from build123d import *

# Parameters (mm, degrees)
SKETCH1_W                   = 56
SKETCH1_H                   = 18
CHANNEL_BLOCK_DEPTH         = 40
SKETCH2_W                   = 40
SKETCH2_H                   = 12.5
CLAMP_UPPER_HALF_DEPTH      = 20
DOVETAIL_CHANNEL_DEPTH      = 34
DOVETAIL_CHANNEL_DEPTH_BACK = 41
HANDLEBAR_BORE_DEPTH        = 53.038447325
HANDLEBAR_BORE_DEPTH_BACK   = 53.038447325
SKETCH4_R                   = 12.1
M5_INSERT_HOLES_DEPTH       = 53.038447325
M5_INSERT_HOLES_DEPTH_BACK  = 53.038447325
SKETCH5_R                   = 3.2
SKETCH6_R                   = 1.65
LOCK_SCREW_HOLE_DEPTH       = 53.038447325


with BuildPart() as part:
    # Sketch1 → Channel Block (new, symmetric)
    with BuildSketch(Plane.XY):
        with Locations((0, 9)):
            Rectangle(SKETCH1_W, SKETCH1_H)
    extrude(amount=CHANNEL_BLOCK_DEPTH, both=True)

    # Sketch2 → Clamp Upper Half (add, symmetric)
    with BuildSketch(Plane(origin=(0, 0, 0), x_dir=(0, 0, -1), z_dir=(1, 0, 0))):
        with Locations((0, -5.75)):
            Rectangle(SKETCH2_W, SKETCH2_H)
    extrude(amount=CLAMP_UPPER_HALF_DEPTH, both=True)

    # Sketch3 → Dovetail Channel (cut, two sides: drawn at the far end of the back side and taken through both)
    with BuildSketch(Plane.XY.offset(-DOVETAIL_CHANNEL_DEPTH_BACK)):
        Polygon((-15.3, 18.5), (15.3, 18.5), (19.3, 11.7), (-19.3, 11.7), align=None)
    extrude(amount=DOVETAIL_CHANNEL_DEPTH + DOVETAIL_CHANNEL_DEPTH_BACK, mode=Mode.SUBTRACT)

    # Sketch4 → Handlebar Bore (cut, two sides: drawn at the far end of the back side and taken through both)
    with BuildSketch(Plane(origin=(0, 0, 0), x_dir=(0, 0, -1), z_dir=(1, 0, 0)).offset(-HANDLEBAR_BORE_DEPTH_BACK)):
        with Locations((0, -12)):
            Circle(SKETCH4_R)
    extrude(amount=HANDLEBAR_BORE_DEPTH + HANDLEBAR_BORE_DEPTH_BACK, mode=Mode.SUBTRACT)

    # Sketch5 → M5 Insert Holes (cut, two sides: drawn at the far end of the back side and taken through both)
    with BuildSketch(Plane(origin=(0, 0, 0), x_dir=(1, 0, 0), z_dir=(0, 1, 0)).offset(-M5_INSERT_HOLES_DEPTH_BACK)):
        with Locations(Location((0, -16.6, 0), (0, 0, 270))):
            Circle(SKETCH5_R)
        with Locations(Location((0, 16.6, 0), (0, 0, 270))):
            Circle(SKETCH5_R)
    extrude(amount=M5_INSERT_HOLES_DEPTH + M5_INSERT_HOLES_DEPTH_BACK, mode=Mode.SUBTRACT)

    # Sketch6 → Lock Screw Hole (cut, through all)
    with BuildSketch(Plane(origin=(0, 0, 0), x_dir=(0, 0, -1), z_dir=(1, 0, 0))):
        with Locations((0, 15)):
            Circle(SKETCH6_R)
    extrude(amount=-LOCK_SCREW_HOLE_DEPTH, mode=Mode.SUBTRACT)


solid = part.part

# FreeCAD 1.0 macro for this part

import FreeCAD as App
import Part
import Sketcher

V = App.Vector
Q = App.Units.Quantity

doc = App.newDocument("Part")
body = doc.addObject("PartDesign::Body", "Body")

sketch1 = body.newObject("Sketcher::SketchObject", "Sketch")
sketch1.AttachmentSupport = (doc.getObject("XY_Plane"), [""])
sketch1.MapMode = "FlatFace"
sketch1.addGeometry([
    Part.LineSegment(V(-28, 18, 0), V(-28, 0, 0)),
    Part.LineSegment(V(-28, 0, 0), V(28, 0, 0)),
    Part.LineSegment(V(28, 0, 0), V(28, 18, 0)),
    Part.LineSegment(V(28, 18, 0), V(-28, 18, 0)),
], False)
sketch1.addConstraint([
    Sketcher.Constraint("Coincident", 0, 2, 1, 1),
    Sketcher.Constraint("Coincident", 1, 2, 2, 1),
    Sketcher.Constraint("Coincident", 2, 2, 3, 1),
    Sketcher.Constraint("Coincident", 3, 2, 0, 1),
    Sketcher.Constraint("Vertical", 0),
    Sketcher.Constraint("Horizontal", 1),
    Sketcher.Constraint("Vertical", 2),
    Sketcher.Constraint("Horizontal", 3),
    Sketcher.Constraint("Symmetric", 0, 2, 1, 2, -1, 1),
    Sketcher.Constraint("DistanceX", 1, 1, 1, 2, Q("56 mm")),
    Sketcher.Constraint("DistanceY", 0, 2, 0, 1, Q("18 mm")),
])
pad1 = body.newObject("PartDesign::Pad", "Pad")
pad1.Profile = sketch1
pad1.Length = 80
pad1.Midplane = True

sketch2 = body.newObject("Sketcher::SketchObject", "Sketch001")
sketch2.AttachmentSupport = (doc.getObject("YZ_Plane"), [""])
sketch2.MapMode = "FlatFace"
sketch2.addGeometry([
    Part.LineSegment(V(0.5, 20, 0), V(-12, 20, 0)),
    Part.LineSegment(V(-12, 20, 0), V(-12, -20, 0)),
    Part.LineSegment(V(-12, -20, 0), V(0.5, -20, 0)),
    Part.LineSegment(V(0.5, -20, 0), V(0.5, 20, 0)),
], False)
sketch2.addConstraint([
    Sketcher.Constraint("Coincident", 0, 2, 1, 1),
    Sketcher.Constraint("Coincident", 1, 2, 2, 1),
    Sketcher.Constraint("Coincident", 2, 2, 3, 1),
    Sketcher.Constraint("Coincident", 3, 2, 0, 1),
    Sketcher.Constraint("Horizontal", 0),
    Sketcher.Constraint("Vertical", 1),
    Sketcher.Constraint("Horizontal", 2),
    Sketcher.Constraint("Vertical", 3),
    Sketcher.Constraint("DistanceY", 1, 2, 1, 1, Q("40 mm")),
    Sketcher.Constraint("DistanceX", 0, 2, 0, 1, Q("12.5 mm")),
    Sketcher.Constraint("DistanceX", 0, 2, -1, 1, Q("12 mm")),
    Sketcher.Constraint("DistanceY", -1, 1, 0, 2, Q("20 mm")),
])
pad2 = body.newObject("PartDesign::Pad", "Pad001")
pad2.Profile = sketch2
pad2.Length = 40
pad2.Midplane = True

sketch3 = body.newObject("Sketcher::SketchObject", "Sketch002")
sketch3.AttachmentSupport = (doc.getObject("XY_Plane"), [""])
sketch3.MapMode = "FlatFace"
sketch3.addGeometry([
    Part.LineSegment(V(15.3, 18.5, 0), V(-15.3, 18.5, 0)),
    Part.LineSegment(V(-15.3, 18.5, 0), V(-19.3, 11.7, 0)),
    Part.LineSegment(V(-19.3, 11.7, 0), V(19.3, 11.7, 0)),
    Part.LineSegment(V(19.3, 11.7, 0), V(15.3, 18.5, 0)),
], False)
sketch3.addConstraint([
    Sketcher.Constraint("Coincident", 0, 2, 1, 1),
    Sketcher.Constraint("Coincident", 1, 2, 2, 1),
    Sketcher.Constraint("Coincident", 2, 2, 3, 1),
    Sketcher.Constraint("Coincident", 3, 2, 0, 1),
    Sketcher.Constraint("Horizontal", 0),
    Sketcher.Constraint("Horizontal", 2),
    Sketcher.Constraint("Equal", 1, 3),
    Sketcher.Constraint("DistanceX", 0, 2, 0, 1, Q("30.6 mm")),
    Sketcher.Constraint("DistanceX", 2, 1, 2, 2, Q("38.6 mm")),
    Sketcher.Constraint("DistanceX", 0, 2, -1, 1, Q("15.3 mm")),
    Sketcher.Constraint("DistanceY", -1, 1, 0, 2, Q("18.5 mm")),
    Sketcher.Constraint("DistanceY", -1, 1, 1, 2, Q("11.7 mm")),
])
pocket1 = body.newObject("PartDesign::Pocket", "Pocket")
pocket1.Profile = sketch3
pocket1.Type = "TwoLengths"
pocket1.Length = 34
pocket1.Length2 = 41
pocket1.Reversed = True

sketch4 = body.newObject("Sketcher::SketchObject", "Sketch003")
sketch4.AttachmentSupport = (doc.getObject("YZ_Plane"), [""])
sketch4.MapMode = "FlatFace"
sketch4.addGeometry(Part.Circle(V(-12, 0, 0), V(0, 0, 1), 12.1), False)
sketch4.addConstraint([
    Sketcher.Constraint("PointOnObject", 0, 3, -1),
    Sketcher.Constraint("Diameter", 0, Q("24.2 mm")),
    Sketcher.Constraint("DistanceX", 0, 3, -1, 1, Q("12 mm")),
])
pocket2 = body.newObject("PartDesign::Pocket", "Pocket001")
pocket2.Profile = sketch4
pocket2.Type = "ThroughAll"
pocket2.Midplane = True

sketch5 = body.newObject("Sketcher::SketchObject", "Sketch004")
sketch5.AttachmentSupport = (doc.getObject("XZ_Plane"), [""])
sketch5.MapMode = "FlatFace"
sketch5.addGeometry([
    Part.Circle(V(0, 16.6, 0), V(0, 0, 1), 3.2),
    Part.Circle(V(0, -16.6, 0), V(0, 0, 1), 3.2),
], False)
sketch5.addConstraint([
    Sketcher.Constraint("Equal", 0, 1),
    Sketcher.Constraint("Symmetric", 0, 3, 1, 3, -1, 1),
    Sketcher.Constraint("PointOnObject", 0, 3, -2),
    Sketcher.Constraint("Diameter", 0, Q("6.4 mm")),
    Sketcher.Constraint("DistanceY", -1, 1, 0, 3, Q("16.6 mm")),
])
pocket3 = body.newObject("PartDesign::Pocket", "Pocket002")
pocket3.Profile = sketch5
pocket3.Type = "ThroughAll"
pocket3.Midplane = True

sketch6 = body.newObject("Sketcher::SketchObject", "Sketch005")
sketch6.AttachmentSupport = (doc.getObject("YZ_Plane"), [""])
sketch6.MapMode = "FlatFace"
sketch6.addGeometry(Part.Circle(V(15, 0, 0), V(0, 0, 1), 1.65), False)
sketch6.addConstraint([
    Sketcher.Constraint("PointOnObject", 0, 3, -1),
    Sketcher.Constraint("Diameter", 0, Q("3.3 mm")),
    Sketcher.Constraint("DistanceX", -1, 1, 0, 3, Q("15 mm")),
])
pocket4 = body.newObject("PartDesign::Pocket", "Pocket003")
pocket4.Profile = sketch6
pocket4.Type = "ThroughAll"

doc.recompute()
